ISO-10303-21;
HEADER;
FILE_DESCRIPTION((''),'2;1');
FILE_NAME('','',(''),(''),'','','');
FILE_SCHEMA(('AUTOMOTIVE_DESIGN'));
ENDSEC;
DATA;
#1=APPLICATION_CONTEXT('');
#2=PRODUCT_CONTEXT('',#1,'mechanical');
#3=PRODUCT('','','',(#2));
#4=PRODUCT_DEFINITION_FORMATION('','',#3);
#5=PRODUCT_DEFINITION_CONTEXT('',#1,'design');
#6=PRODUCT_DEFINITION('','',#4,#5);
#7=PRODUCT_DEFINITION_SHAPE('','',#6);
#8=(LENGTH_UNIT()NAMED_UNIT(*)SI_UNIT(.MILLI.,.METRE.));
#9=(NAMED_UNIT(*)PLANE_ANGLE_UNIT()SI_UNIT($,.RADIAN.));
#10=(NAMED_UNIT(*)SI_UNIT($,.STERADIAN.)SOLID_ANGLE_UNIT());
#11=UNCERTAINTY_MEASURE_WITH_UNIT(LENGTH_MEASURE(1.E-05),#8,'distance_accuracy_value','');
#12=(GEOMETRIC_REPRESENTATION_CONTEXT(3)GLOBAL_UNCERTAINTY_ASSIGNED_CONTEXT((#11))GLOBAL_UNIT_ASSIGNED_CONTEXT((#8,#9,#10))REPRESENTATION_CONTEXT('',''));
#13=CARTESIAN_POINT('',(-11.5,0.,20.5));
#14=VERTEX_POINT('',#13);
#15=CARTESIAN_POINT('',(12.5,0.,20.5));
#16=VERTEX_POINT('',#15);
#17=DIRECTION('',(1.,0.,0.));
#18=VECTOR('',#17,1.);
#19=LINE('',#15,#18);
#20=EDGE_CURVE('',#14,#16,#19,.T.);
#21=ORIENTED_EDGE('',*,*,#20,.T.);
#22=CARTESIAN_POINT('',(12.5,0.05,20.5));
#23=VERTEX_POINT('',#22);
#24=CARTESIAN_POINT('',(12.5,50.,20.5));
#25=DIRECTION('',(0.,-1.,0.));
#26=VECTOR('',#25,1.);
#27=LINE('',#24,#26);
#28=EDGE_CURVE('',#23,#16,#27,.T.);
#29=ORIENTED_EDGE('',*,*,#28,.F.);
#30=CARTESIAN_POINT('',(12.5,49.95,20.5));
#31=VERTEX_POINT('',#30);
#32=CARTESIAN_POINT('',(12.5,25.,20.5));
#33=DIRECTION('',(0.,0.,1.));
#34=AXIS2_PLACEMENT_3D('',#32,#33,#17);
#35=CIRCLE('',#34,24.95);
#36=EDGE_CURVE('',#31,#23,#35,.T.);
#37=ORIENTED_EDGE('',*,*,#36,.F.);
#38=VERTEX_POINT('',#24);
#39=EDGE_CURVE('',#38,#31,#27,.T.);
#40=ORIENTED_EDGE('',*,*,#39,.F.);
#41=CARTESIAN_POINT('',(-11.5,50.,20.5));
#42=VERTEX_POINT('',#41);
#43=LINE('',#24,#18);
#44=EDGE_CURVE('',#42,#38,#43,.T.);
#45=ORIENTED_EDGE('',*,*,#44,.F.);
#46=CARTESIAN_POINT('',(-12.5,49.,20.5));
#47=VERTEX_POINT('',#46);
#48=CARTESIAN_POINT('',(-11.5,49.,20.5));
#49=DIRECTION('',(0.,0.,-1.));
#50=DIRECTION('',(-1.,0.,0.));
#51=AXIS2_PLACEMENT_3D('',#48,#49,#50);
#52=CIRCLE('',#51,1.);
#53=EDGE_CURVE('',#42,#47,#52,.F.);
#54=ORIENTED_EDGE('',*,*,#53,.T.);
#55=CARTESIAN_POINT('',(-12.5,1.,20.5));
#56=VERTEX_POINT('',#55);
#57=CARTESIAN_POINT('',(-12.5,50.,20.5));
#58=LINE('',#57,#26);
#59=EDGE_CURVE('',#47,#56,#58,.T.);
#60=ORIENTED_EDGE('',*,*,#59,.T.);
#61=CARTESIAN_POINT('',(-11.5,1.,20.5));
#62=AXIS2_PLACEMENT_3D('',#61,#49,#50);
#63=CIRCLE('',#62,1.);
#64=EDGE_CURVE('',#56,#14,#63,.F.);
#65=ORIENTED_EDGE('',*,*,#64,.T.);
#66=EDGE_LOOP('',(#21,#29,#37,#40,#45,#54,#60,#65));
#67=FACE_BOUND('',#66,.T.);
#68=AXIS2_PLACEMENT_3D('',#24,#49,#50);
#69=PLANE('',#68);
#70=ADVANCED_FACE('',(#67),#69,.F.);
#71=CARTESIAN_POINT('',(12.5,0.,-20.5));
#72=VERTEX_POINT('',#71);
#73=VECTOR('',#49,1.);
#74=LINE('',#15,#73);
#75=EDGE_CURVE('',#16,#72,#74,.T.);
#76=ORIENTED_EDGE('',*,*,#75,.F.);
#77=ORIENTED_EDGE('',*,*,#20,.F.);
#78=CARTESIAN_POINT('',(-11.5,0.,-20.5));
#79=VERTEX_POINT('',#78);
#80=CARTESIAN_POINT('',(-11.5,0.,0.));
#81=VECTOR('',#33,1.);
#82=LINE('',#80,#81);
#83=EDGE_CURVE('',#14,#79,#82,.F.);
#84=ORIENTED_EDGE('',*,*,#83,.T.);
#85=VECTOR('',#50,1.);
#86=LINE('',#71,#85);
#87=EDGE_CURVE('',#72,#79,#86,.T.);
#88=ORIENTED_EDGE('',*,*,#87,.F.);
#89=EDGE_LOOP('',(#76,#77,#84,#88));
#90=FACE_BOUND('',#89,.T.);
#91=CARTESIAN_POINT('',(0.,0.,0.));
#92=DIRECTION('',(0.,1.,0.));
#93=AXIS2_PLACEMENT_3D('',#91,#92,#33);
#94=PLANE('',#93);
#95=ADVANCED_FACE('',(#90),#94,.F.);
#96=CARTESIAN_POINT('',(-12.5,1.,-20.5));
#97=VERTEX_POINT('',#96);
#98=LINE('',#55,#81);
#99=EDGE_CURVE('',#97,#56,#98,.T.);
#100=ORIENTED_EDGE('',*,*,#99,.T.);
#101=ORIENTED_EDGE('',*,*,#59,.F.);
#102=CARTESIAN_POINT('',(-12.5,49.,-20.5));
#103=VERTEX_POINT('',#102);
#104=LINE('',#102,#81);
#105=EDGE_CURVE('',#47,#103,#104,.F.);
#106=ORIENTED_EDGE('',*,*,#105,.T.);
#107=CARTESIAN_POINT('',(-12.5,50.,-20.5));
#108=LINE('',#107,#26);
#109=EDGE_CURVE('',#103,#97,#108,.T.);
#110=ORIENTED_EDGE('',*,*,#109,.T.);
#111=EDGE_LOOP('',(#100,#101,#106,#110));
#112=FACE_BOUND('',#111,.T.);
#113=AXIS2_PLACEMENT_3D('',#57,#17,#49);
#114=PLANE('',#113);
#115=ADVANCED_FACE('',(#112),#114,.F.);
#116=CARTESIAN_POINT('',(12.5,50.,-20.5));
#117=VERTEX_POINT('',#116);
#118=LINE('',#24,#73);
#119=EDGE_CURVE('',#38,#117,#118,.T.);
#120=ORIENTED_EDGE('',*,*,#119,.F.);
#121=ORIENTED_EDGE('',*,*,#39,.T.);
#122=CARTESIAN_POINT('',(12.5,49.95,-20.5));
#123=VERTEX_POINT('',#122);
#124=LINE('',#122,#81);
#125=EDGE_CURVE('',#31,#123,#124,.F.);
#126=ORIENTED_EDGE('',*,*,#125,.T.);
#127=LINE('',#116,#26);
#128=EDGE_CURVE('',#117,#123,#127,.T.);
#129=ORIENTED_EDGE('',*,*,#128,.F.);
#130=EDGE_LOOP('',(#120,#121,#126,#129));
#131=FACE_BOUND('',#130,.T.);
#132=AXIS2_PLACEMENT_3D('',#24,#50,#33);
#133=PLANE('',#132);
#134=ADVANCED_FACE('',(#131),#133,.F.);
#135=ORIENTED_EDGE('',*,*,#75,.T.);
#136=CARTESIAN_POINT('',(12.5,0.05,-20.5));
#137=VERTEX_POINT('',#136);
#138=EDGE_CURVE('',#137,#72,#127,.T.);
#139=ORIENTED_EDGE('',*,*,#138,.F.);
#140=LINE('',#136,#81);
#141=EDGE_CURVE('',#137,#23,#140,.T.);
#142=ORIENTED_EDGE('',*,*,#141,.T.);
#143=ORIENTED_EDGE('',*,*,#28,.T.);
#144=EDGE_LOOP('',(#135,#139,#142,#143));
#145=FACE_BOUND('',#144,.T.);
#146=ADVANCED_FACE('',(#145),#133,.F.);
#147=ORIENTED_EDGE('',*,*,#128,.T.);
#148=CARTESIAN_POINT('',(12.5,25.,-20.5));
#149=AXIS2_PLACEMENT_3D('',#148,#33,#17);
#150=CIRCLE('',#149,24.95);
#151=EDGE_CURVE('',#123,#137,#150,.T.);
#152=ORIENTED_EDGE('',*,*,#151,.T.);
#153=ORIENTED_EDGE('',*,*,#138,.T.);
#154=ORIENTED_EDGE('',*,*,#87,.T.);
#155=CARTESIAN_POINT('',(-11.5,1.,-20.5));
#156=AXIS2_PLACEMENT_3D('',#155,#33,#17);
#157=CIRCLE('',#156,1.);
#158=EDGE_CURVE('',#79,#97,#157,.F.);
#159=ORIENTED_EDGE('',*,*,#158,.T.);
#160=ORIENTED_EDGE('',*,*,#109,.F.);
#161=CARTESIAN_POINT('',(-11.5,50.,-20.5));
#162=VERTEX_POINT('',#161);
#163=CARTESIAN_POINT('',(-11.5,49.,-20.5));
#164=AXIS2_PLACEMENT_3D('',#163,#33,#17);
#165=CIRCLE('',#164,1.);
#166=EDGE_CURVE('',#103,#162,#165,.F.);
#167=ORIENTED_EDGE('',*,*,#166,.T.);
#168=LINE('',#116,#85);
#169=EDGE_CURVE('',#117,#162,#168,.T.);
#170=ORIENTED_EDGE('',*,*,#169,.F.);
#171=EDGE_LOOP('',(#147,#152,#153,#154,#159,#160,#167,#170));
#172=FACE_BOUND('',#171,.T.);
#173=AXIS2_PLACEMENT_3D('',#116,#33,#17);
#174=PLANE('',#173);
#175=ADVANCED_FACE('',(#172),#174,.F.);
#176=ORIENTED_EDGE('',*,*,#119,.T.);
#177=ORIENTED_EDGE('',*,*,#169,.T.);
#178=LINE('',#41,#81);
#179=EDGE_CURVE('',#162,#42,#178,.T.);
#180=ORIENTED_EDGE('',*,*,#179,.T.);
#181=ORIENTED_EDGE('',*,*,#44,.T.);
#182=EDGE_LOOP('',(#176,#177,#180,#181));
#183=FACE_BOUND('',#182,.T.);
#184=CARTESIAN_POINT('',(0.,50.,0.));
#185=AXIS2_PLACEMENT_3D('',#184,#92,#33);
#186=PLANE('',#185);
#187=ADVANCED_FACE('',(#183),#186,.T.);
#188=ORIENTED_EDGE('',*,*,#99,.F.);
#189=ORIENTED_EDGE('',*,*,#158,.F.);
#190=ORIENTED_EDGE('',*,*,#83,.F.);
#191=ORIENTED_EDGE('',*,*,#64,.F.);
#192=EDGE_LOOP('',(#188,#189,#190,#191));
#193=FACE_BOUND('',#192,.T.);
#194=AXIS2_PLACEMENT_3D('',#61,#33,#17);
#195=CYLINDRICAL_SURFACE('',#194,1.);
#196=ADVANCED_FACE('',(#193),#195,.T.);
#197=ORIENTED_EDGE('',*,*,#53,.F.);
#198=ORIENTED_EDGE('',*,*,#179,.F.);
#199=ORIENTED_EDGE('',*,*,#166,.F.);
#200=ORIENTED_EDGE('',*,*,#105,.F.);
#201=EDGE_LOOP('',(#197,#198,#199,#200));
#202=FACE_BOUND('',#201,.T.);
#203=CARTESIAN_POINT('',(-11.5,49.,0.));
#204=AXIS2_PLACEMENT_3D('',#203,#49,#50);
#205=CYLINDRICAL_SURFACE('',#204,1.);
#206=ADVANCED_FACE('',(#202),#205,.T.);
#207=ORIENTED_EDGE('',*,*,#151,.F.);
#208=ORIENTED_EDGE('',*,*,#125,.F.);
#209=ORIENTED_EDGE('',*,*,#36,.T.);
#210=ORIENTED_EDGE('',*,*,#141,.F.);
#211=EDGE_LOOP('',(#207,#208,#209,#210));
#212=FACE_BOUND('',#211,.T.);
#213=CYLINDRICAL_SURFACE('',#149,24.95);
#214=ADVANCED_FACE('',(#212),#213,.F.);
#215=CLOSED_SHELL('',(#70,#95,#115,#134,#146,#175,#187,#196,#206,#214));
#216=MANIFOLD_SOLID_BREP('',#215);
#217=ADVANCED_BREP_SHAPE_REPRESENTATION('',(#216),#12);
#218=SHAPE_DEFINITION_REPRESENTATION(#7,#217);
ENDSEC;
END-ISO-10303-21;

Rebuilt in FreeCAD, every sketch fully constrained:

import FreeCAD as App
import Part
import Sketcher


def edges_at(feature, points):
    """Names of the edges that pass closest to the given points."""
    edges = feature.Shape.Edges
    near = lambda p: min(range(len(edges)), key=lambda i: edges[i].distToShape(Part.Vertex(*p))[0])
    return sorted({f"Edge{near(p) + 1}" for p in points})

doc = App.newDocument("Part")
body = doc.addObject("PartDesign::Body", "Body")

sketch1 = body.newObject("Sketcher::SketchObject", "Sketch")
sketch1.AttachmentSupport = (doc.getObject("XZ_Plane"), [""])
sketch1.MapMode = "FlatFace"
sketch1.addGeometry(Part.LineSegment(App.Vector(-12, -20, 0), App.Vector(-12, 20, 0)), False)
sketch1.addGeometry(Part.LineSegment(App.Vector(-12, 20, 0), App.Vector(12, 20, 0)), False)
sketch1.addGeometry(Part.LineSegment(App.Vector(12, 20, 0), App.Vector(12, -20, 0)), False)
sketch1.addGeometry(Part.LineSegment(App.Vector(12, -20, 0), App.Vector(-12, -20, 0)), False)
sketch1.addConstraint(Sketcher.Constraint("Coincident", 0, 2, 1, 1))
sketch1.addConstraint(Sketcher.Constraint("Coincident", 1, 2, 2, 1))
sketch1.addConstraint(Sketcher.Constraint("Coincident", 2, 2, 3, 1))
sketch1.addConstraint(Sketcher.Constraint("Coincident", 3, 2, 0, 1))
sketch1.addConstraint(Sketcher.Constraint("Vertical", 0))
sketch1.addConstraint(Sketcher.Constraint("Horizontal", 1))
sketch1.addConstraint(Sketcher.Constraint("Vertical", 2))
sketch1.addConstraint(Sketcher.Constraint("Horizontal", 3))
sketch1.addConstraint(Sketcher.Constraint("Symmetric", 0, 2, 2, 2, -1, 1))
sketch1.addConstraint(Sketcher.Constraint("DistanceX", 1, 1, 1, 2, 25.0))
sketch1.addConstraint(Sketcher.Constraint("DistanceY", 0, 1, 0, 2, 41.0))
pad1 = body.newObject("PartDesign::Pad", "Pad")
pad1.Profile = sketch1
pad1.Length = 50
pad1.Reversed = True
doc.recompute()

fillet = body.newObject("PartDesign::Fillet", "Fillet")
fillet.Base = (pad1, edges_at(pad1, [(-12.5, 0, 0)]))
fillet.Radius = 1

sketch2 = body.newObject("Sketcher::SketchObject", "Sketch001")
sketch2.AttachmentSupport = (doc.getObject("XY_Plane"), [""])
sketch2.MapMode = "FlatFace"
sketch2.AttachmentOffset = App.Placement(App.Vector(0, 0, 20.5), App.Rotation())
sketch2.addGeometry(Part.Circle(App.Vector(12, 25, 0), App.Vector(0, 0, 1), 25), False)
sketch2.addConstraint(Sketcher.Constraint("Diameter", 0, 49.9))
sketch2.addConstraint(Sketcher.Constraint("DistanceY", -1, 1, 0, 3, 25.0))
sketch2.addConstraint(Sketcher.Constraint("DistanceX", -1, 1, 0, 3, 12.5))
pocket1 = body.newObject("PartDesign::Pocket", "Pocket")
pocket1.Profile = sketch2
pocket1.Length = 41
doc.recompute()

fillet2 = body.newObject("PartDesign::Fillet", "Fillet001")
fillet2.Base = (pocket1, edges_at(pocket1, [(-12.5, 50, 0)]))
fillet2.Radius = 1

doc.recompute()
